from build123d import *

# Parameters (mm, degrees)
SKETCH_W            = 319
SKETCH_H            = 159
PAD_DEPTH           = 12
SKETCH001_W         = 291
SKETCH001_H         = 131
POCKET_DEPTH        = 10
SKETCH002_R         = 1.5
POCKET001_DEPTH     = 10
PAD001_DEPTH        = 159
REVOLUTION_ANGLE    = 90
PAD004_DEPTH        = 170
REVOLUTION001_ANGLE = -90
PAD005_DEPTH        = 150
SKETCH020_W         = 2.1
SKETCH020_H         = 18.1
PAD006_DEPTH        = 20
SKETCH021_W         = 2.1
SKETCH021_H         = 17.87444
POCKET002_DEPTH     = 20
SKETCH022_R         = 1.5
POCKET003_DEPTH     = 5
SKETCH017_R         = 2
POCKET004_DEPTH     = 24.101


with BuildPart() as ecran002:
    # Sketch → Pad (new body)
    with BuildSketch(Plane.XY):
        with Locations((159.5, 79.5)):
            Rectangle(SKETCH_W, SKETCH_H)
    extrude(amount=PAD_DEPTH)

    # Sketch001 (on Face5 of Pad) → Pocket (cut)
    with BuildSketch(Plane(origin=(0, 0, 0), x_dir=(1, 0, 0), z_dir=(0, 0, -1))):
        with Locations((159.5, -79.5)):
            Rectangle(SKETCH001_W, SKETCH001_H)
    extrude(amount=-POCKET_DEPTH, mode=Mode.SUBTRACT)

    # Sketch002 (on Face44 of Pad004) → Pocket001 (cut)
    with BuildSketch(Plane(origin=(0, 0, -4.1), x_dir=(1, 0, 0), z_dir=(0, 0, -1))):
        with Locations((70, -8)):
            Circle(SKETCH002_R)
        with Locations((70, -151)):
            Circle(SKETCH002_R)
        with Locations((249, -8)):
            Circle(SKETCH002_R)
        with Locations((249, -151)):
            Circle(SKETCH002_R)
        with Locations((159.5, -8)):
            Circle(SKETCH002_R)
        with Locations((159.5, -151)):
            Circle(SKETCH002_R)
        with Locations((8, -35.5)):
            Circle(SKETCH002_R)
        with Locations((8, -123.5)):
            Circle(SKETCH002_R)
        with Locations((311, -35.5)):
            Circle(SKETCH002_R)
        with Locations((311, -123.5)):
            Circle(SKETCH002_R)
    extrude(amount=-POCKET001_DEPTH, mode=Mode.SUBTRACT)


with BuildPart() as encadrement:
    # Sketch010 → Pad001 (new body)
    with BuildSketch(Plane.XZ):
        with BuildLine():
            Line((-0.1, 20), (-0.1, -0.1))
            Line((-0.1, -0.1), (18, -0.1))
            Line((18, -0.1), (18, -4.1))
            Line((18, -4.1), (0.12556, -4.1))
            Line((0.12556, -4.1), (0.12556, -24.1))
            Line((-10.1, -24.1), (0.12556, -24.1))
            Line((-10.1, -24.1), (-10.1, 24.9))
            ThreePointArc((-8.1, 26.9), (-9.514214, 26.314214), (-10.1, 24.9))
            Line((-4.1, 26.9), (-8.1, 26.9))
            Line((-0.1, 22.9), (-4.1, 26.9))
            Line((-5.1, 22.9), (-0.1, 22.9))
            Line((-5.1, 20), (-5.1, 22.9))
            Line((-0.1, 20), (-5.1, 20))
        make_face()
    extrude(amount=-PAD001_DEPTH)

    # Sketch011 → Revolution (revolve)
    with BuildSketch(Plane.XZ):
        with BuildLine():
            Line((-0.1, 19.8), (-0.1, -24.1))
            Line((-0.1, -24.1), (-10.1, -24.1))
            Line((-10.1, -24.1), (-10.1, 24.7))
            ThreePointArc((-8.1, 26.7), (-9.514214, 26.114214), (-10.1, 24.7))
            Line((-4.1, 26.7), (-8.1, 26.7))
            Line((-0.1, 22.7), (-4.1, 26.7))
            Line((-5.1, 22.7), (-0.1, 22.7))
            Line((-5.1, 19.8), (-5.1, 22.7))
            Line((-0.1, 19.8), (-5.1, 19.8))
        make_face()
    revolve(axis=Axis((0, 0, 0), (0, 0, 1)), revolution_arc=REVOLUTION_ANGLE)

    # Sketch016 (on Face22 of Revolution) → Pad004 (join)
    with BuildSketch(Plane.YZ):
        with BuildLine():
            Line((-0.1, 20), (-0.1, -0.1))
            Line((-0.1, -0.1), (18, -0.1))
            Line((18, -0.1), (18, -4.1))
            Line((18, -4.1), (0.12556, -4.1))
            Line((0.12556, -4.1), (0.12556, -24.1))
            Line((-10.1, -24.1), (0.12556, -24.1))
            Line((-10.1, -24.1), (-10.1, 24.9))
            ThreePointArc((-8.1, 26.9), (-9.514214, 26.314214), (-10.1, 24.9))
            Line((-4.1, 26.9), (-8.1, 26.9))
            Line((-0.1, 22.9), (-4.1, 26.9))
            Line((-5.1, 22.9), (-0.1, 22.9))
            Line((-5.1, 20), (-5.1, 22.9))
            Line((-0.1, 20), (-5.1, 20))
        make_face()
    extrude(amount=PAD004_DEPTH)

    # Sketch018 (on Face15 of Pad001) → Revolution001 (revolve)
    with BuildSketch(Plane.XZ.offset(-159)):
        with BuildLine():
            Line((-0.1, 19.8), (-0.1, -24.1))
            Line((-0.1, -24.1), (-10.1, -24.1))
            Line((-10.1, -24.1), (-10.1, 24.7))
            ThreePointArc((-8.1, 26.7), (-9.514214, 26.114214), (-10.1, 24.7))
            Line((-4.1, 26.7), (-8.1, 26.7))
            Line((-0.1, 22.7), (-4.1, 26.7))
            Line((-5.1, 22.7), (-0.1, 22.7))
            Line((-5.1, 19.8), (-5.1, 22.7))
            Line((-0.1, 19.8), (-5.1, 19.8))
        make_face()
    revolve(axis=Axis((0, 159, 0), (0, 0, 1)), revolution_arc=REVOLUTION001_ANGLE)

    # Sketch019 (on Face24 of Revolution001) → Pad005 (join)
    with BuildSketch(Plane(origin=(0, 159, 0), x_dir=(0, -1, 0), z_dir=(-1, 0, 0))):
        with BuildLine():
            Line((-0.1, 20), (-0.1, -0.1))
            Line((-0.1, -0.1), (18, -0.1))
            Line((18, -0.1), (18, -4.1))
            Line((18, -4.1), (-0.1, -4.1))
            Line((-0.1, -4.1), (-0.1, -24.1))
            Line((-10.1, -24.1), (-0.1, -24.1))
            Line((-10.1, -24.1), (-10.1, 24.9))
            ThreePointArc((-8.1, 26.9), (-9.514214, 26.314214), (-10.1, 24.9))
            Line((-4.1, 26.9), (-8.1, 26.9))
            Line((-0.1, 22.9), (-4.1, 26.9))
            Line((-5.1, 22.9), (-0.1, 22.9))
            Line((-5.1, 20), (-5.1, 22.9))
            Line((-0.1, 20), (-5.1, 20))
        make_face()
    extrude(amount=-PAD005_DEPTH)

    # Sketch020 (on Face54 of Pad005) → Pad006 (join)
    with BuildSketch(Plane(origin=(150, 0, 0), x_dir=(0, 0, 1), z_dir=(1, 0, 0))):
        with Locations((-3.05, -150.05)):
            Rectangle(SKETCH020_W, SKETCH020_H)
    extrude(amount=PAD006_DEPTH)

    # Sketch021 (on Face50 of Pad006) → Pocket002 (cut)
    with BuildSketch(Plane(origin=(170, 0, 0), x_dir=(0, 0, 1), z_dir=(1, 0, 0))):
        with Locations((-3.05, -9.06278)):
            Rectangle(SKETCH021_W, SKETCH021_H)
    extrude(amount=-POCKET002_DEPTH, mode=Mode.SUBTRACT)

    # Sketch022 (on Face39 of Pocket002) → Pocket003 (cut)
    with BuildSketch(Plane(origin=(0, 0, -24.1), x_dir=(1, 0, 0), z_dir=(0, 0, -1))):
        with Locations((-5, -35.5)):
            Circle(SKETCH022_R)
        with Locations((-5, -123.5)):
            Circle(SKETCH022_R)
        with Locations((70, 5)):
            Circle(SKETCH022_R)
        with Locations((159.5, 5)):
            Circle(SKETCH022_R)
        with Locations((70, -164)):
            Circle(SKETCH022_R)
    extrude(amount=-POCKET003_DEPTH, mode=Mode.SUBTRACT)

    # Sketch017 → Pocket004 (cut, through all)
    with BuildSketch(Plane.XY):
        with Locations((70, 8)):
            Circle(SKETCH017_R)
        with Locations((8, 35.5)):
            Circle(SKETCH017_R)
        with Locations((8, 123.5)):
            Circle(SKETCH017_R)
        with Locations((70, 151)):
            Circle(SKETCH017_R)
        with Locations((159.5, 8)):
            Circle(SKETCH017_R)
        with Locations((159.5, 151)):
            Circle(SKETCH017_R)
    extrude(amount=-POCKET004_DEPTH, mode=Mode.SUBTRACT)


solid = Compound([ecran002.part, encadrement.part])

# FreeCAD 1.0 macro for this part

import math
import FreeCAD as App
import Part
import Sketcher
Q = App.Units.Quantity


def add_polygon(sketch, points):
    """Adds a closed chain of lines whose ends are joined by coincident constraints."""
    first, n = sketch.GeometryCount, len(points)
    for a, b in zip(points, points[1:] + points[:1]):
        sketch.addGeometry(Part.LineSegment(App.Vector(*a, 0), App.Vector(*b, 0)), False)
    for i in range(n):
        sketch.addConstraint(Sketcher.Constraint("Coincident", first + i, 2, first + (i + 1) % n, 1))

doc = App.newDocument("Part")
body = doc.addObject("PartDesign::Body", "Body")

# Sketch on XY plane
sketch1 = body.newObject("Sketcher::SketchObject", "Sketch")
sketch1.AttachmentSupport = (doc.getObject("XY_Plane"), [""])
sketch1.MapMode = "FlatFace"
add_polygon(sketch1, [(0, 159), (0, 0), (319, 0), (319, 159)])  # lines 0-3
sketch1.addConstraint(Sketcher.Constraint("Vertical", 0))
sketch1.addConstraint(Sketcher.Constraint("Horizontal", 1))
sketch1.addConstraint(Sketcher.Constraint("Vertical", 2))
sketch1.addConstraint(Sketcher.Constraint("Horizontal", 3))
sketch1.addConstraint(Sketcher.Constraint("Coincident", 0, 2, -1, 1))
sketch1.addConstraint(Sketcher.Constraint("DistanceX", 1, 1, 1, 2, Q("319 mm")))
sketch1.addConstraint(Sketcher.Constraint("DistanceY", 0, 2, 0, 1, Q("159 mm")))
pad1 = body.newObject("PartDesign::Pad", "Pad")
pad1.Profile = sketch1
pad1.Length = 12

# Sketch on XY plane
sketch2 = body.newObject("Sketcher::SketchObject", "Sketch001")
sketch2.AttachmentSupport = (doc.getObject("XY_Plane"), [""])
sketch2.MapMode = "FlatFace"
add_polygon(sketch2, [(14, 14), (14, 145), (305, 145), (305, 14)])  # lines 0-3
sketch2.addConstraint(Sketcher.Constraint("Vertical", 0))
sketch2.addConstraint(Sketcher.Constraint("Horizontal", 1))
sketch2.addConstraint(Sketcher.Constraint("Vertical", 2))
sketch2.addConstraint(Sketcher.Constraint("Horizontal", 3))
sketch2.addConstraint(Sketcher.Constraint("DistanceX", 1, 1, 1, 2, Q("291 mm")))
sketch2.addConstraint(Sketcher.Constraint("DistanceY", 0, 1, 0, 2, Q("131 mm")))
sketch2.addConstraint(Sketcher.Constraint("DistanceX", -1, 1, 0, 2, Q("14 mm")))
sketch2.addConstraint(Sketcher.Constraint("DistanceY", -1, 1, 0, 2, Q("145 mm")))
pocket1 = body.newObject("PartDesign::Pocket", "Pocket")
pocket1.Profile = sketch2
pocket1.Length = 10
pocket1.Reversed = True

# Sketch on XY plane
sketch3 = body.newObject("Sketcher::SketchObject", "Sketch002")
sketch3.AttachmentSupport = (doc.getObject("XY_Plane"), [""])
sketch3.MapMode = "FlatFace"
sketch3.AttachmentOffset = App.Placement(App.Vector(0, 0, -4.1), App.Rotation())
sketch3.addGeometry(Part.Circle(App.Vector(70, 8, 0), App.Vector(0, 0, 1), 1.5), False)
sketch3.addGeometry(Part.Circle(App.Vector(70, 151, 0), App.Vector(0, 0, 1), 1.5), False)
sketch3.addGeometry(Part.Circle(App.Vector(249, 8, 0), App.Vector(0, 0, 1), 1.5), False)
sketch3.addGeometry(Part.Circle(App.Vector(249, 151, 0), App.Vector(0, 0, 1), 1.5), False)
sketch3.addGeometry(Part.Circle(App.Vector(159.5, 8, 0), App.Vector(0, 0, 1), 1.5), False)
sketch3.addGeometry(Part.Circle(App.Vector(159.5, 151, 0), App.Vector(0, 0, 1), 1.5), False)
sketch3.addGeometry(Part.Circle(App.Vector(8, 35.5, 0), App.Vector(0, 0, 1), 1.5), False)
sketch3.addGeometry(Part.Circle(App.Vector(8, 123.5, 0), App.Vector(0, 0, 1), 1.5), False)
sketch3.addGeometry(Part.Circle(App.Vector(311, 35.5, 0), App.Vector(0, 0, 1), 1.5), False)
sketch3.addGeometry(Part.Circle(App.Vector(311, 123.5, 0), App.Vector(0, 0, 1), 1.5), False)
sketch3.addConstraint(Sketcher.Constraint("Equal", 0, 1))
sketch3.addConstraint(Sketcher.Constraint("Equal", 1, 2))
sketch3.addConstraint(Sketcher.Constraint("Equal", 2, 3))
sketch3.addConstraint(Sketcher.Constraint("Equal", 3, 4))
sketch3.addConstraint(Sketcher.Constraint("Equal", 4, 5))
sketch3.addConstraint(Sketcher.Constraint("Equal", 5, 6))
sketch3.addConstraint(Sketcher.Constraint("Equal", 6, 7))
sketch3.addConstraint(Sketcher.Constraint("Equal", 7, 8))
sketch3.addConstraint(Sketcher.Constraint("Equal", 8, 9))
sketch3.addConstraint(Sketcher.Constraint("Horizontal", 0, 3, 2, 3))
sketch3.addConstraint(Sketcher.Constraint("Horizontal", 1, 3, 3, 3))
sketch3.addConstraint(Sketcher.Constraint("Horizontal", 2, 3, 4, 3))
sketch3.addConstraint(Sketcher.Constraint("Horizontal", 3, 3, 5, 3))
sketch3.addConstraint(Sketcher.Constraint("Horizontal", 6, 3, 8, 3))
sketch3.addConstraint(Sketcher.Constraint("Horizontal", 7, 3, 9, 3))
sketch3.addConstraint(Sketcher.Constraint("Vertical", 0, 3, 1, 3))
sketch3.addConstraint(Sketcher.Constraint("Vertical", 2, 3, 3, 3))
sketch3.addConstraint(Sketcher.Constraint("Vertical", 4, 3, 5, 3))
sketch3.addConstraint(Sketcher.Constraint("Vertical", 6, 3, 7, 3))
sketch3.addConstraint(Sketcher.Constraint("Vertical", 8, 3, 9, 3))
sketch3.addConstraint(Sketcher.Constraint("Diameter", 0, Q("3 mm")))
sketch3.addConstraint(Sketcher.Constraint("DistanceX", -1, 1, 0, 3, Q("70 mm")))
sketch3.addConstraint(Sketcher.Constraint("DistanceY", -1, 1, 0, 3, Q("8 mm")))
sketch3.addConstraint(Sketcher.Constraint("DistanceY", -1, 1, 1, 3, Q("151 mm")))
sketch3.addConstraint(Sketcher.Constraint("DistanceX", -1, 1, 2, 3, Q("249 mm")))
sketch3.addConstraint(Sketcher.Constraint("DistanceX", -1, 1, 6, 3, Q("8 mm")))
sketch3.addConstraint(Sketcher.Constraint("DistanceX", -1, 1, 8, 3, Q("311 mm")))
sketch3.addConstraint(Sketcher.Constraint("DistanceY", 6, 3, 7, 3, Q("88 mm")))
sketch3.addConstraint(Sketcher.Constraint("DistanceX", -1, 1, 4, 3, Q("159.5 mm")))
sketch3.addConstraint(Sketcher.Constraint("DistanceY", -1, 1, 6, 3, Q("35.5 mm")))
pocket2 = body.newObject("PartDesign::Pocket", "Pocket001")
pocket2.Profile = sketch3
pocket2.Length = 10
pocket2.Reversed = True
body2 = doc.addObject("PartDesign::Body", "Body001")

# Sketch on XZ plane
sketch4 = body2.newObject("Sketcher::SketchObject", "Sketch003")
sketch4.AttachmentSupport = (doc.getObject("XZ_Plane001"), [""])
sketch4.MapMode = "FlatFace"
sketch4.addGeometry(Part.LineSegment(App.Vector(-0.1, -0.1, 0), App.Vector(-0.1, 20, 0)), False)
sketch4.addGeometry(Part.LineSegment(App.Vector(-0.1, 20, 0), App.Vector(-5.1, 20, 0)), False)
sketch4.addGeometry(Part.LineSegment(App.Vector(-5.1, 20, 0), App.Vector(-5.1, 22.9, 0)), False)
sketch4.addGeometry(Part.LineSegment(App.Vector(-5.1, 22.9, 0), App.Vector(-0.1, 22.9, 0)), False)
sketch4.addGeometry(Part.LineSegment(App.Vector(-0.1, 22.9, 0), App.Vector(-4.1, 26.9, 0)), False)
sketch4.addGeometry(Part.LineSegment(App.Vector(-4.1, 26.9, 0), App.Vector(-8.1, 26.9, 0)), False)
sketch4.addGeometry(Part.ArcOfCircle(Part.Circle(App.Vector(-8.1, 24.9, 0), App.Vector(0, 0, 1), 2), math.radians(90), math.radians(180)), False)
sketch4.addGeometry(Part.LineSegment(App.Vector(-10.1, 24.9, 0), App.Vector(-10.1, -24.1, 0)), False)
sketch4.addGeometry(Part.LineSegment(App.Vector(-10.1, -24.1, 0), App.Vector(0.1, -24.1, 0)), False)
sketch4.addGeometry(Part.LineSegment(App.Vector(0.1, -24.1, 0), App.Vector(0.1, -4.1, 0)), False)
sketch4.addGeometry(Part.LineSegment(App.Vector(0.1, -4.1, 0), App.Vector(18, -4.1, 0)), False)
sketch4.addGeometry(Part.LineSegment(App.Vector(18, -4.1, 0), App.Vector(18, -0.1, 0)), False)
sketch4.addGeometry(Part.LineSegment(App.Vector(18, -0.1, 0), App.Vector(-0.1, -0.1, 0)), False)
sketch4.addConstraint(Sketcher.Constraint("Coincident", 0, 2, 1, 1))
sketch4.addConstraint(Sketcher.Constraint("Coincident", 1, 2, 2, 1))
sketch4.addConstraint(Sketcher.Constraint("Coincident", 2, 2, 3, 1))
sketch4.addConstraint(Sketcher.Constraint("Coincident", 3, 2, 4, 1))
sketch4.addConstraint(Sketcher.Constraint("Coincident", 4, 2, 5, 1))
sketch4.addConstraint(Sketcher.Constraint("Tangent", 5, 2, 6, 1))
sketch4.addConstraint(Sketcher.Constraint("Tangent", 6, 2, 7, 1))
sketch4.addConstraint(Sketcher.Constraint("Coincident", 7, 2, 8, 1))
sketch4.addConstraint(Sketcher.Constraint("Coincident", 8, 2, 9, 1))
sketch4.addConstraint(Sketcher.Constraint("Coincident", 9, 2, 10, 1))
sketch4.addConstraint(Sketcher.Constraint("Coincident", 10, 2, 11, 1))
sketch4.addConstraint(Sketcher.Constraint("Coincident", 11, 2, 12, 1))
sketch4.addConstraint(Sketcher.Constraint("Coincident", 12, 2, 0, 1))
sketch4.addConstraint(Sketcher.Constraint("Vertical", 0))
sketch4.addConstraint(Sketcher.Constraint("Horizontal", 1))
sketch4.addConstraint(Sketcher.Constraint("Vertical", 2))
sketch4.addConstraint(Sketcher.Constraint("Horizontal", 3))
sketch4.addConstraint(Sketcher.Constraint("Horizontal", 5))
sketch4.addConstraint(Sketcher.Constraint("Vertical", 7))
sketch4.addConstraint(Sketcher.Constraint("Horizontal", 8))
sketch4.addConstraint(Sketcher.Constraint("Vertical", 9))
sketch4.addConstraint(Sketcher.Constraint("Horizontal", 10))
sketch4.addConstraint(Sketcher.Constraint("Vertical", 11))
sketch4.addConstraint(Sketcher.Constraint("Horizontal", 12))
sketch4.addConstraint(Sketcher.Constraint("Vertical", 0, 2, 3, 2))
sketch4.addConstraint(Sketcher.Constraint("Equal", 5, 11))
sketch4.addConstraint(Sketcher.Constraint("Radius", 6, Q("1.999999 mm")))
sketch4.addConstraint(Sketcher.Constraint("DistanceX", 1, 2, 1, 1, Q("5 mm")))
sketch4.addConstraint(Sketcher.Constraint("DistanceX", 5, 2, 5, 1, Q("4 mm")))
sketch4.addConstraint(Sketcher.Constraint("DistanceY", 7, 2, 7, 1, Q("49 mm")))
sketch4.addConstraint(Sketcher.Constraint("DistanceY", 9, 1, 9, 2, Q("20 mm")))
sketch4.addConstraint(Sketcher.Constraint("Angle", 4, Q("135 deg")))
sketch4.addConstraint(Sketcher.Constraint("DistanceX", 12, 2, 12, 1, Q("18.1 mm")))
sketch4.addConstraint(Sketcher.Constraint("DistanceY", 0, 1, 0, 2, Q("20.1 mm")))
sketch4.addConstraint(Sketcher.Constraint("DistanceY", 2, 1, 2, 2, Q("2.9 mm")))
sketch4.addConstraint(Sketcher.Constraint("DistanceY", -1, 1, 0, 2, Q("20 mm")))
sketch4.addConstraint(Sketcher.Constraint("DistanceX", -1, 1, 10, 2, Q("18 mm")))
sketch4.addConstraint(Sketcher.Constraint("DistanceX", 8, 1, 8, 2, Q("10.22556 mm")))
pad2 = body2.newObject("PartDesign::Pad", "Pad001")
pad2.Profile = sketch4
pad2.Length = 159
pad2.Reversed = True

# Sketch on XZ plane
sketch5 = body2.newObject("Sketcher::SketchObject", "Sketch004")
sketch5.AttachmentSupport = (doc.getObject("XZ_Plane001"), [""])
sketch5.MapMode = "FlatFace"
sketch5.addGeometry(Part.LineSegment(App.Vector(-0.1, -24.1, 0), App.Vector(-0.1, 19.8, 0)), False)
sketch5.addGeometry(Part.LineSegment(App.Vector(-0.1, 19.8, 0), App.Vector(-5.1, 19.8, 0)), False)
sketch5.addGeometry(Part.LineSegment(App.Vector(-5.1, 19.8, 0), App.Vector(-5.1, 22.7, 0)), False)
sketch5.addGeometry(Part.LineSegment(App.Vector(-5.1, 22.7, 0), App.Vector(-0.1, 22.7, 0)), False)
sketch5.addGeometry(Part.LineSegment(App.Vector(-0.1, 22.7, 0), App.Vector(-4.1, 26.7, 0)), False)
sketch5.addGeometry(Part.LineSegment(App.Vector(-4.1, 26.7, 0), App.Vector(-8.1, 26.7, 0)), False)
sketch5.addGeometry(Part.ArcOfCircle(Part.Circle(App.Vector(-8.1, 24.7, 0), App.Vector(0, 0, 1), 2), math.radians(90), math.radians(180)), False)
sketch5.addGeometry(Part.LineSegment(App.Vector(-10.1, 24.7, 0), App.Vector(-10.1, -24.1, 0)), False)
sketch5.addGeometry(Part.LineSegment(App.Vector(-10.1, -24.1, 0), App.Vector(-0.1, -24.1, 0)), False)
sketch5.addConstraint(Sketcher.Constraint("Coincident", 0, 2, 1, 1))
sketch5.addConstraint(Sketcher.Constraint("Coincident", 1, 2, 2, 1))
sketch5.addConstraint(Sketcher.Constraint("Coincident", 2, 2, 3, 1))
sketch5.addConstraint(Sketcher.Constraint("Coincident", 3, 2, 4, 1))
sketch5.addConstraint(Sketcher.Constraint("Coincident", 4, 2, 5, 1))
sketch5.addConstraint(Sketcher.Constraint("Tangent", 5, 2, 6, 1))
sketch5.addConstraint(Sketcher.Constraint("Tangent", 6, 2, 7, 1))
sketch5.addConstraint(Sketcher.Constraint("Coincident", 7, 2, 8, 1))
sketch5.addConstraint(Sketcher.Constraint("Coincident", 8, 2, 0, 1))
sketch5.addConstraint(Sketcher.Constraint("Vertical", 0))
sketch5.addConstraint(Sketcher.Constraint("Horizontal", 1))
sketch5.addConstraint(Sketcher.Constraint("Vertical", 2))
sketch5.addConstraint(Sketcher.Constraint("Horizontal", 3))
sketch5.addConstraint(Sketcher.Constraint("Horizontal", 5))
sketch5.addConstraint(Sketcher.Constraint("Vertical", 7))
sketch5.addConstraint(Sketcher.Constraint("Horizontal", 8))
sketch5.addConstraint(Sketcher.Constraint("Vertical", 0, 2, 3, 2))
sketch5.addConstraint(Sketcher.Constraint("Radius", 6, Q("1.999999 mm")))
sketch5.addConstraint(Sketcher.Constraint("DistanceX", 1, 2, 1, 1, Q("5 mm")))
sketch5.addConstraint(Sketcher.Constraint("DistanceX", 5, 2, 5, 1, Q("4 mm")))
sketch5.addConstraint(Sketcher.Constraint("DistanceX", 8, 1, 8, 2, Q("10 mm")))
sketch5.addConstraint(Sketcher.Constraint("Angle", 4, Q("135 deg")))
sketch5.addConstraint(Sketcher.Constraint("DistanceY", 0, 1, 0, 2, Q("43.9 mm")))
sketch5.addConstraint(Sketcher.Constraint("DistanceY", 2, 1, 2, 2, Q("2.9 mm")))
sketch5.addConstraint(Sketcher.Constraint("DistanceX", 6, 3, -1, 1, Q("8.100001 mm")))
sketch5.addConstraint(Sketcher.Constraint("DistanceY", -1, 1, 6, 3, Q("24.700001 mm")))
revolution = body2.newObject("PartDesign::Revolution", "Revolution")
revolution.Profile = sketch5
revolution.ReferenceAxis = (sketch5, ["V_Axis"])
revolution.Angle = 90

# Sketch on YZ plane
sketch6 = body2.newObject("Sketcher::SketchObject", "Sketch005")
sketch6.AttachmentSupport = (doc.getObject("YZ_Plane001"), [""])
sketch6.MapMode = "FlatFace"
sketch6.addGeometry(Part.LineSegment(App.Vector(-0.1, -0.1, 0), App.Vector(-0.1, 20, 0)), False)
sketch6.addGeometry(Part.LineSegment(App.Vector(-0.1, 20, 0), App.Vector(-5.1, 20, 0)), False)
sketch6.addGeometry(Part.LineSegment(App.Vector(-5.1, 20, 0), App.Vector(-5.1, 22.9, 0)), False)
sketch6.addGeometry(Part.LineSegment(App.Vector(-5.1, 22.9, 0), App.Vector(-0.1, 22.9, 0)), False)
sketch6.addGeometry(Part.LineSegment(App.Vector(-0.1, 22.9, 0), App.Vector(-4.1, 26.9, 0)), False)
sketch6.addGeometry(Part.LineSegment(App.Vector(-4.1, 26.9, 0), App.Vector(-8.1, 26.9, 0)), False)
sketch6.addGeometry(Part.ArcOfCircle(Part.Circle(App.Vector(-8.1, 24.9, 0), App.Vector(0, 0, 1), 2), math.radians(90), math.radians(180)), False)
sketch6.addGeometry(Part.LineSegment(App.Vector(-10.1, 24.9, 0), App.Vector(-10.1, -24.1, 0)), False)
sketch6.addGeometry(Part.LineSegment(App.Vector(-10.1, -24.1, 0), App.Vector(0.1, -24.1, 0)), False)
sketch6.addGeometry(Part.LineSegment(App.Vector(0.1, -24.1, 0), App.Vector(0.1, -4.1, 0)), False)
sketch6.addGeometry(Part.LineSegment(App.Vector(0.1, -4.1, 0), App.Vector(18, -4.1, 0)), False)
sketch6.addGeometry(Part.LineSegment(App.Vector(18, -4.1, 0), App.Vector(18, -0.1, 0)), False)
sketch6.addGeometry(Part.LineSegment(App.Vector(18, -0.1, 0), App.Vector(-0.1, -0.1, 0)), False)
sketch6.addConstraint(Sketcher.Constraint("Coincident", 0, 2, 1, 1))
sketch6.addConstraint(Sketcher.Constraint("Coincident", 1, 2, 2, 1))
sketch6.addConstraint(Sketcher.Constraint("Coincident", 2, 2, 3, 1))
sketch6.addConstraint(Sketcher.Constraint("Coincident", 3, 2, 4, 1))
sketch6.addConstraint(Sketcher.Constraint("Coincident", 4, 2, 5, 1))
sketch6.addConstraint(Sketcher.Constraint("Tangent", 5, 2, 6, 1))
sketch6.addConstraint(Sketcher.Constraint("Tangent", 6, 2, 7, 1))
sketch6.addConstraint(Sketcher.Constraint("Coincident", 7, 2, 8, 1))
sketch6.addConstraint(Sketcher.Constraint("Coincident", 8, 2, 9, 1))
sketch6.addConstraint(Sketcher.Constraint("Coincident", 9, 2, 10, 1))
sketch6.addConstraint(Sketcher.Constraint("Coincident", 10, 2, 11, 1))
sketch6.addConstraint(Sketcher.Constraint("Coincident", 11, 2, 12, 1))
sketch6.addConstraint(Sketcher.Constraint("Coincident", 12, 2, 0, 1))
sketch6.addConstraint(Sketcher.Constraint("Vertical", 0))
sketch6.addConstraint(Sketcher.Constraint("Horizontal", 1))
sketch6.addConstraint(Sketcher.Constraint("Vertical", 2))
sketch6.addConstraint(Sketcher.Constraint("Horizontal", 3))
sketch6.addConstraint(Sketcher.Constraint("Horizontal", 5))
sketch6.addConstraint(Sketcher.Constraint("Vertical", 7))
sketch6.addConstraint(Sketcher.Constraint("Horizontal", 8))
sketch6.addConstraint(Sketcher.Constraint("Vertical", 9))
sketch6.addConstraint(Sketcher.Constraint("Horizontal", 10))
sketch6.addConstraint(Sketcher.Constraint("Vertical", 11))
sketch6.addConstraint(Sketcher.Constraint("Horizontal", 12))
sketch6.addConstraint(Sketcher.Constraint("Vertical", 0, 2, 3, 2))
sketch6.addConstraint(Sketcher.Constraint("Equal", 5, 11))
sketch6.addConstraint(Sketcher.Constraint("Radius", 6, Q("1.999999 mm")))
sketch6.addConstraint(Sketcher.Constraint("DistanceX", 1, 2, 1, 1, Q("5 mm")))
sketch6.addConstraint(Sketcher.Constraint("DistanceX", 5, 2, 5, 1, Q("4 mm")))
sketch6.addConstraint(Sketcher.Constraint("DistanceY", 7, 2, 7, 1, Q("49 mm")))
sketch6.addConstraint(Sketcher.Constraint("DistanceY", 9, 1, 9, 2, Q("20 mm")))
sketch6.addConstraint(Sketcher.Constraint("Angle", 4, Q("135 deg")))
sketch6.addConstraint(Sketcher.Constraint("DistanceX", 12, 2, 12, 1, Q("18.1 mm")))
sketch6.addConstraint(Sketcher.Constraint("DistanceY", 0, 1, 0, 2, Q("20.1 mm")))
sketch6.addConstraint(Sketcher.Constraint("DistanceY", 2, 1, 2, 2, Q("2.9 mm")))
sketch6.addConstraint(Sketcher.Constraint("DistanceY", -1, 1, 0, 2, Q("20 mm")))
sketch6.addConstraint(Sketcher.Constraint("DistanceX", -1, 1, 10, 2, Q("18 mm")))
sketch6.addConstraint(Sketcher.Constraint("DistanceX", 8, 1, 8, 2, Q("10.22556 mm")))
pad3 = body2.newObject("PartDesign::Pad", "Pad002")
pad3.Profile = sketch6
pad3.Length = 170

# Sketch on XZ plane
sketch7 = body2.newObject("Sketcher::SketchObject", "Sketch006")
sketch7.AttachmentSupport = (doc.getObject("XZ_Plane001"), [""])
sketch7.MapMode = "FlatFace"
sketch7.AttachmentOffset = App.Placement(App.Vector(0, 0, -159), App.Rotation())
sketch7.addGeometry(Part.LineSegment(App.Vector(-0.1, -24.1, 0), App.Vector(-0.1, 19.8, 0)), False)
sketch7.addGeometry(Part.LineSegment(App.Vector(-0.1, 19.8, 0), App.Vector(-5.1, 19.8, 0)), False)
sketch7.addGeometry(Part.LineSegment(App.Vector(-5.1, 19.8, 0), App.Vector(-5.1, 22.7, 0)), False)
sketch7.addGeometry(Part.LineSegment(App.Vector(-5.1, 22.7, 0), App.Vector(-0.1, 22.7, 0)), False)
sketch7.addGeometry(Part.LineSegment(App.Vector(-0.1, 22.7, 0), App.Vector(-4.1, 26.7, 0)), False)
sketch7.addGeometry(Part.LineSegment(App.Vector(-4.1, 26.7, 0), App.Vector(-8.1, 26.7, 0)), False)
sketch7.addGeometry(Part.ArcOfCircle(Part.Circle(App.Vector(-8.1, 24.7, 0), App.Vector(0, 0, 1), 2), math.radians(90), math.radians(180)), False)
sketch7.addGeometry(Part.LineSegment(App.Vector(-10.1, 24.7, 0), App.Vector(-10.1, -24.1, 0)), False)
sketch7.addGeometry(Part.LineSegment(App.Vector(-10.1, -24.1, 0), App.Vector(-0.1, -24.1, 0)), False)
sketch7.addConstraint(Sketcher.Constraint("Coincident", 0, 2, 1, 1))
sketch7.addConstraint(Sketcher.Constraint("Coincident", 1, 2, 2, 1))
sketch7.addConstraint(Sketcher.Constraint("Coincident", 2, 2, 3, 1))
sketch7.addConstraint(Sketcher.Constraint("Coincident", 3, 2, 4, 1))
sketch7.addConstraint(Sketcher.Constraint("Coincident", 4, 2, 5, 1))
sketch7.addConstraint(Sketcher.Constraint("Tangent", 5, 2, 6, 1))
sketch7.addConstraint(Sketcher.Constraint("Tangent", 6, 2, 7, 1))
sketch7.addConstraint(Sketcher.Constraint("Coincident", 7, 2, 8, 1))
sketch7.addConstraint(Sketcher.Constraint("Coincident", 8, 2, 0, 1))
sketch7.addConstraint(Sketcher.Constraint("Vertical", 0))
sketch7.addConstraint(Sketcher.Constraint("Horizontal", 1))
sketch7.addConstraint(Sketcher.Constraint("Vertical", 2))
sketch7.addConstraint(Sketcher.Constraint("Horizontal", 3))
sketch7.addConstraint(Sketcher.Constraint("Horizontal", 5))
sketch7.addConstraint(Sketcher.Constraint("Vertical", 7))
sketch7.addConstraint(Sketcher.Constraint("Horizontal", 8))
sketch7.addConstraint(Sketcher.Constraint("Vertical", 0, 2, 3, 2))
sketch7.addConstraint(Sketcher.Constraint("Radius", 6, Q("1.999999 mm")))
sketch7.addConstraint(Sketcher.Constraint("DistanceX", 1, 2, 1, 1, Q("5 mm")))
sketch7.addConstraint(Sketcher.Constraint("DistanceX", 5, 2, 5, 1, Q("4 mm")))
sketch7.addConstraint(Sketcher.Constraint("DistanceX", 8, 1, 8, 2, Q("10 mm")))
sketch7.addConstraint(Sketcher.Constraint("Angle", 4, Q("135 deg")))
sketch7.addConstraint(Sketcher.Constraint("DistanceY", 0, 1, 0, 2, Q("43.9 mm")))
sketch7.addConstraint(Sketcher.Constraint("DistanceY", 2, 1, 2, 2, Q("2.9 mm")))
sketch7.addConstraint(Sketcher.Constraint("DistanceX", 6, 3, -1, 1, Q("8.100001 mm")))
sketch7.addConstraint(Sketcher.Constraint("DistanceY", -1, 1, 6, 3, Q("24.700001 mm")))
revolution2 = body2.newObject("PartDesign::Revolution", "Revolution001")
revolution2.Profile = sketch7
revolution2.ReferenceAxis = (sketch7, ["V_Axis"])
revolution2.Angle = 90
revolution2.Reversed = True

# Sketch on YZ plane
sketch8 = body2.newObject("Sketcher::SketchObject", "Sketch007")
sketch8.AttachmentSupport = (doc.getObject("YZ_Plane001"), [""])
sketch8.MapMode = "FlatFace"
sketch8.addGeometry(Part.LineSegment(App.Vector(159.1, -0.1, 0), App.Vector(159.1, 20, 0)), False)
sketch8.addGeometry(Part.LineSegment(App.Vector(159.1, 20, 0), App.Vector(164.1, 20, 0)), False)
sketch8.addGeometry(Part.LineSegment(App.Vector(164.1, 20, 0), App.Vector(164.1, 22.9, 0)), False)
sketch8.addGeometry(Part.LineSegment(App.Vector(164.1, 22.9, 0), App.Vector(159.1, 22.9, 0)), False)
sketch8.addGeometry(Part.LineSegment(App.Vector(159.1, 22.9, 0), App.Vector(163.1, 26.9, 0)), False)
sketch8.addGeometry(Part.LineSegment(App.Vector(163.1, 26.9, 0), App.Vector(167.1, 26.9, 0)), False)
sketch8.addGeometry(Part.ArcOfCircle(Part.Circle(App.Vector(167.1, 24.9, 0), App.Vector(0, 0, 1), 2), math.radians(0), math.radians(90)), False)
sketch8.addGeometry(Part.LineSegment(App.Vector(169.1, 24.9, 0), App.Vector(169.1, -24.1, 0)), False)
sketch8.addGeometry(Part.LineSegment(App.Vector(169.1, -24.1, 0), App.Vector(159.1, -24.1, 0)), False)
sketch8.addGeometry(Part.LineSegment(App.Vector(159.1, -24.1, 0), App.Vector(159.1, -4.1, 0)), False)
sketch8.addGeometry(Part.LineSegment(App.Vector(159.1, -4.1, 0), App.Vector(141, -4.1, 0)), False)
sketch8.addGeometry(Part.LineSegment(App.Vector(141, -4.1, 0), App.Vector(141, -0.1, 0)), False)
sketch8.addGeometry(Part.LineSegment(App.Vector(141, -0.1, 0), App.Vector(159.1, -0.1, 0)), False)
sketch8.addConstraint(Sketcher.Constraint("Coincident", 0, 2, 1, 1))
sketch8.addConstraint(Sketcher.Constraint("Coincident", 1, 2, 2, 1))
sketch8.addConstraint(Sketcher.Constraint("Coincident", 2, 2, 3, 1))
sketch8.addConstraint(Sketcher.Constraint("Coincident", 3, 2, 4, 1))
sketch8.addConstraint(Sketcher.Constraint("Coincident", 4, 2, 5, 1))
sketch8.addConstraint(Sketcher.Constraint("Tangent", 5, 2, 6, 2))
sketch8.addConstraint(Sketcher.Constraint("Tangent", 6, 1, 7, 1))
sketch8.addConstraint(Sketcher.Constraint("Coincident", 7, 2, 8, 1))
sketch8.addConstraint(Sketcher.Constraint("Coincident", 8, 2, 9, 1))
sketch8.addConstraint(Sketcher.Constraint("Coincident", 9, 2, 10, 1))
sketch8.addConstraint(Sketcher.Constraint("Coincident", 10, 2, 11, 1))
sketch8.addConstraint(Sketcher.Constraint("Coincident", 11, 2, 12, 1))
sketch8.addConstraint(Sketcher.Constraint("Coincident", 12, 2, 0, 1))
sketch8.addConstraint(Sketcher.Constraint("Vertical", 0))
sketch8.addConstraint(Sketcher.Constraint("Horizontal", 1))
sketch8.addConstraint(Sketcher.Constraint("Vertical", 2))
sketch8.addConstraint(Sketcher.Constraint("Horizontal", 3))
sketch8.addConstraint(Sketcher.Constraint("Horizontal", 5))
sketch8.addConstraint(Sketcher.Constraint("Vertical", 7))
sketch8.addConstraint(Sketcher.Constraint("Horizontal", 8))
sketch8.addConstraint(Sketcher.Constraint("Vertical", 9))
sketch8.addConstraint(Sketcher.Constraint("Horizontal", 10))
sketch8.addConstraint(Sketcher.Constraint("Vertical", 11))
sketch8.addConstraint(Sketcher.Constraint("Horizontal", 12))
sketch8.addConstraint(Sketcher.Constraint("Vertical", 0, 2, 3, 2))
sketch8.addConstraint(Sketcher.Constraint("Vertical", 3, 2, 8, 2))
sketch8.addConstraint(Sketcher.Constraint("Equal", 5, 11))
sketch8.addConstraint(Sketcher.Constraint("Radius", 6, Q("1.999999 mm")))
sketch8.addConstraint(Sketcher.Constraint("DistanceX", 1, 1, 1, 2, Q("5 mm")))
sketch8.addConstraint(Sketcher.Constraint("DistanceX", 5, 1, 5, 2, Q("4 mm")))
sketch8.addConstraint(Sketcher.Constraint("DistanceX", 8, 2, 8, 1, Q("10 mm")))
sketch8.addConstraint(Sketcher.Constraint("DistanceY", 7, 2, 7, 1, Q("49 mm")))
sketch8.addConstraint(Sketcher.Constraint("DistanceY", 9, 1, 9, 2, Q("20 mm")))
sketch8.addConstraint(Sketcher.Constraint("Angle", 4, Q("45 deg")))
sketch8.addConstraint(Sketcher.Constraint("DistanceX", 10, 2, 10, 1, Q("18.1 mm")))
sketch8.addConstraint(Sketcher.Constraint("DistanceY", 0, 1, 0, 2, Q("20.1 mm")))
sketch8.addConstraint(Sketcher.Constraint("DistanceY", -1, 1, 0, 2, Q("20 mm")))
sketch8.addConstraint(Sketcher.Constraint("DistanceX", -1, 1, 10, 2, Q("141 mm")))
pad4 = body2.newObject("PartDesign::Pad", "Pad003")
pad4.Profile = sketch8
pad4.Length = 150

# Sketch on YZ plane
sketch9 = body2.newObject("Sketcher::SketchObject", "Sketch008")
sketch9.AttachmentSupport = (doc.getObject("YZ_Plane001"), [""])
sketch9.MapMode = "FlatFace"
sketch9.AttachmentOffset = App.Placement(App.Vector(0, 0, 150), App.Rotation())
add_polygon(sketch9, [(141, -4.1), (159.1, -4.1), (159.1, -2), (141, -2)])  # lines 0-3
sketch9.addConstraint(Sketcher.Constraint("Horizontal", 0))
sketch9.addConstraint(Sketcher.Constraint("Vertical", 1))
sketch9.addConstraint(Sketcher.Constraint("Horizontal", 2))
sketch9.addConstraint(Sketcher.Constraint("Vertical", 3))
sketch9.addConstraint(Sketcher.Constraint("DistanceX", 0, 1, 0, 2, Q("18.1 mm")))
sketch9.addConstraint(Sketcher.Constraint("DistanceY", 1, 1, 1, 2, Q("2.1 mm")))
sketch9.addConstraint(Sketcher.Constraint("DistanceY", 1, 2, -1, 1, Q("2 mm")))
sketch9.addConstraint(Sketcher.Constraint("DistanceX", -1, 1, 2, 2, Q("141 mm")))
pad5 = body2.newObject("PartDesign::Pad", "Pad004")
pad5.Profile = sketch9
pad5.Length = 20

# Sketch on YZ plane
sketch10 = body2.newObject("Sketcher::SketchObject", "Sketch009")
sketch10.AttachmentSupport = (doc.getObject("YZ_Plane001"), [""])
sketch10.MapMode = "FlatFace"
sketch10.AttachmentOffset = App.Placement(App.Vector(0, 0, 170), App.Rotation())
add_polygon(sketch10, [(0.1, -4.1), (18, -4.1), (18, -2), (0.1, -2)])  # lines 0-3
sketch10.addConstraint(Sketcher.Constraint("Horizontal", 0))
sketch10.addConstraint(Sketcher.Constraint("Vertical", 1))
sketch10.addConstraint(Sketcher.Constraint("Horizontal", 2))
sketch10.addConstraint(Sketcher.Constraint("Vertical", 3))
sketch10.addConstraint(Sketcher.Constraint("DistanceY", 1, 1, 1, 2, Q("2.1 mm")))
sketch10.addConstraint(Sketcher.Constraint("DistanceX", -1, 1, 0, 2, Q("18 mm")))
sketch10.addConstraint(Sketcher.Constraint("DistanceY", 1, 2, -1, 1, Q("2 mm")))
sketch10.addConstraint(Sketcher.Constraint("DistanceX", 0, 1, 0, 2, Q("17.87444 mm")))
pocket3 = body2.newObject("PartDesign::Pocket", "Pocket002")
pocket3.Profile = sketch10
pocket3.Length = 20

# Sketch on XY plane
sketch11 = body2.newObject("Sketcher::SketchObject", "Sketch010")
sketch11.AttachmentSupport = (doc.getObject("XY_Plane001"), [""])
sketch11.MapMode = "FlatFace"
sketch11.AttachmentOffset = App.Placement(App.Vector(0, 0, -24.1), App.Rotation())
sketch11.addGeometry(Part.Circle(App.Vector(-5, 35.5, 0), App.Vector(0, 0, 1), 1.5), False)
sketch11.addGeometry(Part.Circle(App.Vector(-5, 123.5, 0), App.Vector(0, 0, 1), 1.5), False)
sketch11.addGeometry(Part.Circle(App.Vector(70, -5, 0), App.Vector(0, 0, 1), 1.5), False)
sketch11.addGeometry(Part.Circle(App.Vector(159.5, -5, 0), App.Vector(0, 0, 1), 1.5), False)
sketch11.addGeometry(Part.Circle(App.Vector(70, 164, 0), App.Vector(0, 0, 1), 1.5), False)
sketch11.addConstraint(Sketcher.Constraint("Equal", 0, 1))
sketch11.addConstraint(Sketcher.Constraint("Equal", 1, 2))
sketch11.addConstraint(Sketcher.Constraint("Equal", 2, 3))
sketch11.addConstraint(Sketcher.Constraint("Equal", 3, 4))
sketch11.addConstraint(Sketcher.Constraint("Horizontal", 2, 3, 3, 3))
sketch11.addConstraint(Sketcher.Constraint("Vertical", 0, 3, 1, 3))
sketch11.addConstraint(Sketcher.Constraint("Vertical", 2, 3, 4, 3))
sketch11.addConstraint(Sketcher.Constraint("Diameter", 0, Q("3 mm")))
sketch11.addConstraint(Sketcher.Constraint("DistanceX", 0, 3, -1, 1, Q("5 mm")))
sketch11.addConstraint(Sketcher.Constraint("DistanceX", -1, 1, 2, 3, Q("70 mm")))
sketch11.addConstraint(Sketcher.Constraint("DistanceY", 2, 3, -1, 1, Q("5 mm")))
sketch11.addConstraint(Sketcher.Constraint("DistanceY", -1, 1, 4, 3, Q("164 mm")))
sketch11.addConstraint(Sketcher.Constraint("DistanceY", 0, 3, 1, 3, Q("88 mm")))
sketch11.addConstraint(Sketcher.Constraint("DistanceY", -1, 1, 0, 3, Q("35.5 mm")))
sketch11.addConstraint(Sketcher.Constraint("DistanceX", -1, 1, 3, 3, Q("159.5 mm")))
pocket4 = body2.newObject("PartDesign::Pocket", "Pocket003")
pocket4.Profile = sketch11
pocket4.Length = 5
pocket4.Reversed = True

# Sketch on XY plane
sketch12 = body2.newObject("Sketcher::SketchObject", "Sketch011")
sketch12.AttachmentSupport = (doc.getObject("XY_Plane001"), [""])
sketch12.MapMode = "FlatFace"
sketch12.addGeometry(Part.Circle(App.Vector(70, 8, 0), App.Vector(0, 0, 1), 2), False)
sketch12.addGeometry(Part.Circle(App.Vector(8, 35.5, 0), App.Vector(0, 0, 1), 2), False)
sketch12.addGeometry(Part.Circle(App.Vector(8, 123.5, 0), App.Vector(0, 0, 1), 2), False)
sketch12.addGeometry(Part.Circle(App.Vector(70, 151, 0), App.Vector(0, 0, 1), 2), False)
sketch12.addGeometry(Part.Circle(App.Vector(159.5, 8, 0), App.Vector(0, 0, 1), 2), False)
sketch12.addGeometry(Part.Circle(App.Vector(159.5, 151, 0), App.Vector(0, 0, 1), 2), False)
sketch12.addConstraint(Sketcher.Constraint("Equal", 0, 1))
sketch12.addConstraint(Sketcher.Constraint("Equal", 1, 2))
sketch12.addConstraint(Sketcher.Constraint("Equal", 2, 3))
sketch12.addConstraint(Sketcher.Constraint("Equal", 3, 4))
sketch12.addConstraint(Sketcher.Constraint("Equal", 4, 5))
sketch12.addConstraint(Sketcher.Constraint("Horizontal", 0, 3, 4, 3))
sketch12.addConstraint(Sketcher.Constraint("Horizontal", 3, 3, 5, 3))
sketch12.addConstraint(Sketcher.Constraint("Vertical", 1, 3, 2, 3))
sketch12.addConstraint(Sketcher.Constraint("Vertical", 0, 3, 3, 3))
sketch12.addConstraint(Sketcher.Constraint("Vertical", 4, 3, 5, 3))
sketch12.addConstraint(Sketcher.Constraint("Diameter", 0, Q("4 mm")))
sketch12.addConstraint(Sketcher.Constraint("DistanceX", -1, 1, 0, 3, Q("70 mm")))
sketch12.addConstraint(Sketcher.Constraint("DistanceY", -1, 1, 0, 3, Q("8 mm")))
sketch12.addConstraint(Sketcher.Constraint("DistanceX", -1, 1, 1, 3, Q("8 mm")))
sketch12.addConstraint(Sketcher.Constraint("DistanceY", -1, 1, 3, 3, Q("151 mm")))
sketch12.addConstraint(Sketcher.Constraint("DistanceY", 1, 3, 2, 3, Q("88 mm")))
sketch12.addConstraint(Sketcher.Constraint("DistanceY", -1, 1, 1, 3, Q("35.5 mm")))
sketch12.addConstraint(Sketcher.Constraint("DistanceX", -1, 1, 4, 3, Q("159.5 mm")))
pocket5 = body2.newObject("PartDesign::Pocket", "Pocket004")
pocket5.Profile = sketch12
pocket5.Type = "ThroughAll"

doc.recompute()
